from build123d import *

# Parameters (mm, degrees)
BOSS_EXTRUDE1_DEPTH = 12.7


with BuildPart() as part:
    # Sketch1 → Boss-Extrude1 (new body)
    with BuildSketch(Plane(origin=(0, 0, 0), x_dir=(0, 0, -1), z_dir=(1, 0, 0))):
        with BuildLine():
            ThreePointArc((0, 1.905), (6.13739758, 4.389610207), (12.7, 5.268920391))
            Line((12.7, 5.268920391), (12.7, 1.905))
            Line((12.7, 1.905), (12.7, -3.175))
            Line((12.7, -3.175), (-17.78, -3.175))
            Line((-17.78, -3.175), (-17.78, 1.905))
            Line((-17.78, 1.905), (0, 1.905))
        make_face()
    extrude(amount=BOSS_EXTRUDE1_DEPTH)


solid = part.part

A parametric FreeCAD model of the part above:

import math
import FreeCAD as App
import Part
import Sketcher
Q = App.Units.Quantity

doc = App.newDocument("Part")
body = doc.addObject("PartDesign::Body", "Body")

# Sketch on YZ plane
sketch1 = body.newObject("Sketcher::SketchObject", "Sketch")
sketch1.AttachmentSupport = (doc.getObject("YZ_Plane"), [""])
sketch1.MapMode = "FlatFace"
sketch1.addGeometry([
    Part.ArcOfCircle(Part.Circle(App.Vector(-21, -13, 0), App.Vector(0, 0, 1), 26), math.radians(0), math.radians(29)),  # 0
    Part.LineSegment(App.Vector(2, 0, 0), App.Vector(2, 18, 0)),  # 1
    Part.LineSegment(App.Vector(2, 18, 0), App.Vector(-3, 18, 0)),  # 2
    Part.LineSegment(App.Vector(-3, 18, 0), App.Vector(-3, -13, 0)),  # 3
    Part.LineSegment(App.Vector(-3, -13, 0), App.Vector(5, -13, 0)),  # 4
], False)
sketch1.addConstraint([
    Sketcher.Constraint("Coincident", 0, 2, 1, 1),
    Sketcher.Constraint("Coincident", 1, 2, 2, 1),
    Sketcher.Constraint("Coincident", 2, 2, 3, 1),
    Sketcher.Constraint("Coincident", 3, 2, 4, 1),
    Sketcher.Constraint("Coincident", 4, 2, 0, 1),
    Sketcher.Constraint("Vertical", 1),
    Sketcher.Constraint("Horizontal", 2),
    Sketcher.Constraint("Vertical", 3),
    Sketcher.Constraint("Horizontal", 4),
    Sketcher.Constraint("PointOnObject", 0, 2, -1),
    Sketcher.Constraint("DistanceX", 2, 2, 2, 1, Q("0.2 in")),
    Sketcher.Constraint("DistanceY", 1, 1, 1, 2, Q("0.7 in")),
    Sketcher.Constraint("DistanceY", 3, 2, 3, 1, Q("1.2 in")),
    Sketcher.Constraint("DistanceX", -1, 1, 0, 2, Q("0.075 in")),
    Sketcher.Constraint("Radius", 0, Q("26.399727 mm")),
    Sketcher.Constraint("DistanceX", 4, 1, 4, 2, Q("8.44392 mm")),
])
pad1 = body.newObject("PartDesign::Pad", "Pad")
pad1.Profile = sketch1
pad1.Length = Q("0.5 in")

doc.recompute()
